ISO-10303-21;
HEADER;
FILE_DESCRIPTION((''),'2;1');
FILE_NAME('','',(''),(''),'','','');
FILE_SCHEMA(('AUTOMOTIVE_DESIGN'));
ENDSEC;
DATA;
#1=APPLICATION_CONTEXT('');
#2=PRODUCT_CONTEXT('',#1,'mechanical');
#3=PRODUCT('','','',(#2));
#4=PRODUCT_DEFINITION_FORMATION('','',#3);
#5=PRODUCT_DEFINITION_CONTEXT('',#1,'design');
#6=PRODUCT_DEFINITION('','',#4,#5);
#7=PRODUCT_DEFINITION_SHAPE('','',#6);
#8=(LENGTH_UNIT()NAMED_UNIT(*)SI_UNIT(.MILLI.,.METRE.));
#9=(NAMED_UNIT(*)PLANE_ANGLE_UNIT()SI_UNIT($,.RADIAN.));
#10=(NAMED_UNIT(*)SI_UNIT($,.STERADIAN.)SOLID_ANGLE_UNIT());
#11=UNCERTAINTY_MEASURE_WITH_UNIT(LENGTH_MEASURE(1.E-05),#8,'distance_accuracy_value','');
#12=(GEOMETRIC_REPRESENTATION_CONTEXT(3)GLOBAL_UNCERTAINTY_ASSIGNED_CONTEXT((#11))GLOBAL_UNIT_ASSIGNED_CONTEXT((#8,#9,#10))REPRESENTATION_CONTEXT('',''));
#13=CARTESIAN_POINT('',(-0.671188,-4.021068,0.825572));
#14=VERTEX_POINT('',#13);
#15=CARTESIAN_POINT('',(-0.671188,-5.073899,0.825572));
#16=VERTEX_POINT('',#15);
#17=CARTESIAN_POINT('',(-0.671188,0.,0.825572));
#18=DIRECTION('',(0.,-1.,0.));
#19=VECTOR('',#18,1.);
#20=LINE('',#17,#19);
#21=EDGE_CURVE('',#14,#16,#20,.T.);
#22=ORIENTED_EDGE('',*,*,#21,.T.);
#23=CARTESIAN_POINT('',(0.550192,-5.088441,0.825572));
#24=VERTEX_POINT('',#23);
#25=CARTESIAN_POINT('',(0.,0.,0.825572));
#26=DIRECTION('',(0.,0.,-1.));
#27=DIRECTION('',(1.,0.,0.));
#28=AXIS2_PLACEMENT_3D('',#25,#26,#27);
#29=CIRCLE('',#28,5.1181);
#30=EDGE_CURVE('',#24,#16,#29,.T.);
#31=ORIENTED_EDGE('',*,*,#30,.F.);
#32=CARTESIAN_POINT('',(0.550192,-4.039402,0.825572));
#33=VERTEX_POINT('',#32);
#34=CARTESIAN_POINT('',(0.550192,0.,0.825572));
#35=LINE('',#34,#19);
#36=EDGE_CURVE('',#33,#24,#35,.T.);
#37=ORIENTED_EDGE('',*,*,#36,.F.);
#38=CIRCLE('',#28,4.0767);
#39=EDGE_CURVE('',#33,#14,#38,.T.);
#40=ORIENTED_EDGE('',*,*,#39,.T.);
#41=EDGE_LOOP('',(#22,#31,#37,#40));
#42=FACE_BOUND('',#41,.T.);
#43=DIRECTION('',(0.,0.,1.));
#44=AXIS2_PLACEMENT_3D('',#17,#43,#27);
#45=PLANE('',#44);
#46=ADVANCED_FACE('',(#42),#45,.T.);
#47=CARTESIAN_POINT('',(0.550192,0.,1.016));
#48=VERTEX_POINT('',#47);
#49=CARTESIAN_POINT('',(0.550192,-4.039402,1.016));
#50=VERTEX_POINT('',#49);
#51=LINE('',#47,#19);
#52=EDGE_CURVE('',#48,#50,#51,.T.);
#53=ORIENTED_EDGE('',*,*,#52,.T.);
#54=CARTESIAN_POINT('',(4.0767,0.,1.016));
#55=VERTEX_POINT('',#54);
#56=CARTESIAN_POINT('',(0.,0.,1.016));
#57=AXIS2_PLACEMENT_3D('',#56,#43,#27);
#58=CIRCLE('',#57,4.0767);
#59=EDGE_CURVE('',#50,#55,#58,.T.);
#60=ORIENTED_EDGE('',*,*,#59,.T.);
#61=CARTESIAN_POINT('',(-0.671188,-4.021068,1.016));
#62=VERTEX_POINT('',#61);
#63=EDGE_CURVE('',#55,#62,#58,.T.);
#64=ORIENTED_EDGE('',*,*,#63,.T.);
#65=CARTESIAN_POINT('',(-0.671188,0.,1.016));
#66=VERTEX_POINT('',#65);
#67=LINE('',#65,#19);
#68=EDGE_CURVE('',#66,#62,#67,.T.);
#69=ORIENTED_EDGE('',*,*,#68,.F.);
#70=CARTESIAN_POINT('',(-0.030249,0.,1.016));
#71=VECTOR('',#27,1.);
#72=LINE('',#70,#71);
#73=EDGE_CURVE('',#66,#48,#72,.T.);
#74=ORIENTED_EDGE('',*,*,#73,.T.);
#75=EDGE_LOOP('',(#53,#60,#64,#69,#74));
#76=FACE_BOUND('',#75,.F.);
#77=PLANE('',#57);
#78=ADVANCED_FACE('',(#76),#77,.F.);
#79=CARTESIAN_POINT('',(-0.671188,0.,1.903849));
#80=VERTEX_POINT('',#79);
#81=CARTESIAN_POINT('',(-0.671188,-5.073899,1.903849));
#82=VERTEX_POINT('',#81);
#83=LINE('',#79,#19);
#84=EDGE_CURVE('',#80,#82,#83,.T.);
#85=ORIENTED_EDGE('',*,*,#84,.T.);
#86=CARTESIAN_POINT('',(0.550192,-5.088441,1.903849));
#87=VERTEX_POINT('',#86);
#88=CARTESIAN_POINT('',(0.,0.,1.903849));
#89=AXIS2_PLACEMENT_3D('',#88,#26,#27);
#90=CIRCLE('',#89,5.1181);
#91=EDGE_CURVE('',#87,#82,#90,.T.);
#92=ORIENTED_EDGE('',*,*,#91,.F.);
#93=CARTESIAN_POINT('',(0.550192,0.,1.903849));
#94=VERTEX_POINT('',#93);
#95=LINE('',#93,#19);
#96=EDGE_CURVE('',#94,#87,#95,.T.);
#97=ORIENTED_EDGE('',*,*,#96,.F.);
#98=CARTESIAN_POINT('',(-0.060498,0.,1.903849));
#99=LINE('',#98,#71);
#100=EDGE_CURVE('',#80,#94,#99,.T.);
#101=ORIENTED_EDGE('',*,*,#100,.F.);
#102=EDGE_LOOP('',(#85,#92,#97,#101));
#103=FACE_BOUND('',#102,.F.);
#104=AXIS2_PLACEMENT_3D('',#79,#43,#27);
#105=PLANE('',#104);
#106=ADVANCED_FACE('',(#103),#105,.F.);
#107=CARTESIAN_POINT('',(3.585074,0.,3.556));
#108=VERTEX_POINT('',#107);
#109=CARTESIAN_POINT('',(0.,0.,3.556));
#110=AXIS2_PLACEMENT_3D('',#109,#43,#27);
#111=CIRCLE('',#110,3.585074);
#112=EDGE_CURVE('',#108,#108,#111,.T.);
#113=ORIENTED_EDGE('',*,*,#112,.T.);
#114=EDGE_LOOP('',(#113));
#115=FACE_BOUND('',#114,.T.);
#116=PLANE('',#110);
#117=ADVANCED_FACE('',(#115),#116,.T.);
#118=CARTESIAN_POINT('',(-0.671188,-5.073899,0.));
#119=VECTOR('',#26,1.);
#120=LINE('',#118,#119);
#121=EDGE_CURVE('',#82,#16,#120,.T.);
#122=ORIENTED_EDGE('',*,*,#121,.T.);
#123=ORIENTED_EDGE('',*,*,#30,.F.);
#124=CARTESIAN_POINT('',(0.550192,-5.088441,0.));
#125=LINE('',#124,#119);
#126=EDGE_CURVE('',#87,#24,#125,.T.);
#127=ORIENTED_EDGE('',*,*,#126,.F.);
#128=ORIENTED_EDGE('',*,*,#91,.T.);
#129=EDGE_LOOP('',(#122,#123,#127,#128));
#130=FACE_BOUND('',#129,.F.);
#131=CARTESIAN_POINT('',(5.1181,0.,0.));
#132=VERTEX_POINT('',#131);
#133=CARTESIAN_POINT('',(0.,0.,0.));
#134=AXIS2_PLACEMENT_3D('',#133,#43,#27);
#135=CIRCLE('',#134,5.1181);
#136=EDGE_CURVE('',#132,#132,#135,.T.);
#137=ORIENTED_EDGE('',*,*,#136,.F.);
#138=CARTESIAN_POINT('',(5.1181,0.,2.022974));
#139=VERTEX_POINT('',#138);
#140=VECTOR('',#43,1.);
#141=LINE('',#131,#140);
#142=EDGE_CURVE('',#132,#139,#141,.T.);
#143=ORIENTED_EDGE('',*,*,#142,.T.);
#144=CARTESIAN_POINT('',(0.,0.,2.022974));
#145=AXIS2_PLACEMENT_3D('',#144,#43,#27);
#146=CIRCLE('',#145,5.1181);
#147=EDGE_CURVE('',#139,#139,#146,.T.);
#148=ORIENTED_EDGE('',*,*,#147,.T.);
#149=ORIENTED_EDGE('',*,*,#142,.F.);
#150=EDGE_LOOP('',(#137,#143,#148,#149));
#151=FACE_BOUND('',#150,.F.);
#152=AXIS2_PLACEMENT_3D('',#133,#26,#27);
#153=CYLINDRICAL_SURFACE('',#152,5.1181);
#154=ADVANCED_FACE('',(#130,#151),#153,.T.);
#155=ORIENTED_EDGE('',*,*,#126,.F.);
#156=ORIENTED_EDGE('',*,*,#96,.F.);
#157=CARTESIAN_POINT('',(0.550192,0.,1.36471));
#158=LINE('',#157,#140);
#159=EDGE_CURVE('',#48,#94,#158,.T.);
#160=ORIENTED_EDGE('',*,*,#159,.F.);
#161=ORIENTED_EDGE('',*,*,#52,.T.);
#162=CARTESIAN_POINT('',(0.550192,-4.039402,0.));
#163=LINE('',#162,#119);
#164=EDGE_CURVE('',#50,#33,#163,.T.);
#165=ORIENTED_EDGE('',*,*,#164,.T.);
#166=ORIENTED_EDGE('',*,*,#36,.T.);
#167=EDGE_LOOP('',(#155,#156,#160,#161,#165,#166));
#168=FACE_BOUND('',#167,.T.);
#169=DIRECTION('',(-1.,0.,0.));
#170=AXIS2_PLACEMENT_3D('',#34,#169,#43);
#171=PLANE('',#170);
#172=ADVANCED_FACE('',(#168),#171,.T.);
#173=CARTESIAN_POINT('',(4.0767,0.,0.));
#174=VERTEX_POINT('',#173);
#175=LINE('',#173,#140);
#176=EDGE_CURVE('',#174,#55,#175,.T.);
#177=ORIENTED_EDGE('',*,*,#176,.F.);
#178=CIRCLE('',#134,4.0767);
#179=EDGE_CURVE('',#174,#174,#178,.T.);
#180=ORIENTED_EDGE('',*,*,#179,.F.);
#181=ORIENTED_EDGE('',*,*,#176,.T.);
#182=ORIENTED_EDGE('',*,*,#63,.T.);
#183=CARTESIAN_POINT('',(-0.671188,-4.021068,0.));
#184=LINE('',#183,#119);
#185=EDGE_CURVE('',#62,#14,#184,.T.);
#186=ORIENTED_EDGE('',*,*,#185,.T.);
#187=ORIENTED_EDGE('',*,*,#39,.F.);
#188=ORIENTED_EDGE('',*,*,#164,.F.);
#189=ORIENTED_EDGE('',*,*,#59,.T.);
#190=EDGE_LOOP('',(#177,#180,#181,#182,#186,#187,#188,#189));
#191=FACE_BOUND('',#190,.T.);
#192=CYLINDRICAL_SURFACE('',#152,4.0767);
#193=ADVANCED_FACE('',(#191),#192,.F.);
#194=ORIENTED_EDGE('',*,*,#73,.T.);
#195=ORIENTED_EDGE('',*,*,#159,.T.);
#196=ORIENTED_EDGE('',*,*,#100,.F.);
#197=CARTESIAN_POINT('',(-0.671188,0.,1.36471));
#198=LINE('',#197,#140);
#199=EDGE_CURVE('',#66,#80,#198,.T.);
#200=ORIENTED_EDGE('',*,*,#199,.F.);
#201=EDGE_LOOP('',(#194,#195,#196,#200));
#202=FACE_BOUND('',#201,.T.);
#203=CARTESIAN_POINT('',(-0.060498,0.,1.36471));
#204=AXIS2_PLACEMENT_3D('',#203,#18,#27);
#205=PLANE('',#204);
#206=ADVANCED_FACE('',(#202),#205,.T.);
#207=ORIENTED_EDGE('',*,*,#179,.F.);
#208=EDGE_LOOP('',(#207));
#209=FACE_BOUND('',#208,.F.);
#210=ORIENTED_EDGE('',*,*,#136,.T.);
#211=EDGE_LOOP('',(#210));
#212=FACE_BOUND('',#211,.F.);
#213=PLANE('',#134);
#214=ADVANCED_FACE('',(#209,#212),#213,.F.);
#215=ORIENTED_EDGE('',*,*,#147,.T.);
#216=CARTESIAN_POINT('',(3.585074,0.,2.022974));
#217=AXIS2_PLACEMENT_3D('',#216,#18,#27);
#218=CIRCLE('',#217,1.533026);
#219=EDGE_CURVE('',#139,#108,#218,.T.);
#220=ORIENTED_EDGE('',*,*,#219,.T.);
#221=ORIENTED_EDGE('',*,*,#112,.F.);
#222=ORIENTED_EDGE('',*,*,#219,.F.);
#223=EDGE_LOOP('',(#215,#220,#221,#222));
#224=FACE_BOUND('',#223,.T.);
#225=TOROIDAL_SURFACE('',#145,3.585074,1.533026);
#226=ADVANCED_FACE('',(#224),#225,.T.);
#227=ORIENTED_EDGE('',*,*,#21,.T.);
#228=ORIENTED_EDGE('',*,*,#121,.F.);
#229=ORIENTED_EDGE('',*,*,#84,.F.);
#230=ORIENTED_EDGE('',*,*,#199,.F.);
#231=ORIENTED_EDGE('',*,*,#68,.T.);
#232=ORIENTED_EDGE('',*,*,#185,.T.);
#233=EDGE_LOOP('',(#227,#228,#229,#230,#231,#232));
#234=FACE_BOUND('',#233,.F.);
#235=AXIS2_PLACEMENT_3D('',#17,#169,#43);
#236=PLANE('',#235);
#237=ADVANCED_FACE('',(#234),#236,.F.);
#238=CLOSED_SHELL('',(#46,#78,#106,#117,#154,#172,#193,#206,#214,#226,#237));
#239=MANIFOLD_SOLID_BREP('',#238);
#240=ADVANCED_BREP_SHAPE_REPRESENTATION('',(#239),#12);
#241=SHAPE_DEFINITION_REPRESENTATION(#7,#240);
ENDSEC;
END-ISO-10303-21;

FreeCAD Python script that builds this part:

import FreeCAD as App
import Part
import Sketcher

V = App.Vector
Q = App.Units.Quantity


def edges_at(feature, points):
    """Names of the edges that pass closest to the given points."""
    edges = feature.Shape.Edges
    near = lambda p: min(range(len(edges)), key=lambda i: edges[i].distToShape(Part.Vertex(*p))[0])
    return sorted({f"Edge{near(p) + 1}" for p in points})

doc = App.newDocument("Part")
body = doc.addObject("PartDesign::Body", "Body")

sketch1 = doc.addObject("Sketcher::SketchObject", "Sketch")
body.addObject(sketch1)
sketch1.AttachmentSupport = (doc.XY_Plane, [""])
sketch1.MapMode = "FlatFace"
sketch1.addGeometry(Part.Circle(V(0, 0, 0), V(0, 0, 1), 5), False)
sketch1.addConstraint([
    Sketcher.Constraint("Coincident", 0, 3, -1, 1),
    Sketcher.Constraint("Diameter", 0, Q("0.403 in")),
])
pad1 = doc.addObject("PartDesign::Pad", "Pad")
body.addObject(pad1)
pad1.Profile = sketch1
pad1.Length = Q("0.14 in")

sketch2 = doc.addObject("Sketcher::SketchObject", "Sketch001")
body.addObject(sketch2)
sketch2.AttachmentSupport = (doc.XY_Plane, [""])
sketch2.MapMode = "FlatFace"
sketch2.addGeometry(Part.Circle(V(0, 0, 0), V(0, 0, 1), 4.1), False)
sketch2.addConstraint([
    Sketcher.Constraint("Coincident", 0, 3, -1, 1),
    Sketcher.Constraint("Diameter", 0, Q("0.321 in")),
])
pocket1 = doc.addObject("PartDesign::Pocket", "Pocket")
body.addObject(pocket1)
pocket1.Profile = sketch2
pocket1.Length = Q("0.04 in")
pocket1.Reversed = True
doc.recompute()

fillet = doc.addObject("PartDesign::Fillet", "Fillet")
body.addObject(fillet)
fillet.Base = (pocket1, edges_at(pocket1, [(-5.118, 0, 3.556)]))
fillet.Radius = 1.533026

sketch3 = doc.addObject("Sketcher::SketchObject", "Sketch002")
body.addObject(sketch3)
sketch3.AttachmentSupport = (doc.XZ_Plane, [""])
sketch3.MapMode = "FlatFace"
sketch3.addGeometry([
    Part.LineSegment(V(-0.7, 1.9, 0), V(-0.7, 0.8, 0)),
    Part.LineSegment(V(-0.7, 0.8, 0), V(0.6, 0.8, 0)),
    Part.LineSegment(V(0.6, 0.8, 0), V(0.6, 1.9, 0)),
    Part.LineSegment(V(0.6, 1.9, 0), V(-0.7, 1.9, 0)),
], False)
sketch3.addConstraint([
    Sketcher.Constraint("Coincident", 0, 2, 1, 1),
    Sketcher.Constraint("Coincident", 1, 2, 2, 1),
    Sketcher.Constraint("Coincident", 2, 2, 3, 1),
    Sketcher.Constraint("Coincident", 3, 2, 0, 1),
    Sketcher.Constraint("Vertical", 0),
    Sketcher.Constraint("Horizontal", 1),
    Sketcher.Constraint("Vertical", 2),
    Sketcher.Constraint("Horizontal", 3),
    Sketcher.Constraint("DistanceX", 1, 1, 1, 2, Q("1.221381 mm")),
    Sketcher.Constraint("DistanceY", 0, 2, 0, 1, Q("1.078277 mm")),
    Sketcher.Constraint("DistanceX", 0, 2, -1, 1, Q("0.671188 mm")),
    Sketcher.Constraint("DistanceY", -1, 1, 0, 2, Q("0.825572 mm")),
])
pocket2 = doc.addObject("PartDesign::Pocket", "Pocket001")
body.addObject(pocket2)
pocket2.Profile = sketch3
pocket2.Length = Q("0.216 in")
pocket2.Reversed = True

doc.recompute()
